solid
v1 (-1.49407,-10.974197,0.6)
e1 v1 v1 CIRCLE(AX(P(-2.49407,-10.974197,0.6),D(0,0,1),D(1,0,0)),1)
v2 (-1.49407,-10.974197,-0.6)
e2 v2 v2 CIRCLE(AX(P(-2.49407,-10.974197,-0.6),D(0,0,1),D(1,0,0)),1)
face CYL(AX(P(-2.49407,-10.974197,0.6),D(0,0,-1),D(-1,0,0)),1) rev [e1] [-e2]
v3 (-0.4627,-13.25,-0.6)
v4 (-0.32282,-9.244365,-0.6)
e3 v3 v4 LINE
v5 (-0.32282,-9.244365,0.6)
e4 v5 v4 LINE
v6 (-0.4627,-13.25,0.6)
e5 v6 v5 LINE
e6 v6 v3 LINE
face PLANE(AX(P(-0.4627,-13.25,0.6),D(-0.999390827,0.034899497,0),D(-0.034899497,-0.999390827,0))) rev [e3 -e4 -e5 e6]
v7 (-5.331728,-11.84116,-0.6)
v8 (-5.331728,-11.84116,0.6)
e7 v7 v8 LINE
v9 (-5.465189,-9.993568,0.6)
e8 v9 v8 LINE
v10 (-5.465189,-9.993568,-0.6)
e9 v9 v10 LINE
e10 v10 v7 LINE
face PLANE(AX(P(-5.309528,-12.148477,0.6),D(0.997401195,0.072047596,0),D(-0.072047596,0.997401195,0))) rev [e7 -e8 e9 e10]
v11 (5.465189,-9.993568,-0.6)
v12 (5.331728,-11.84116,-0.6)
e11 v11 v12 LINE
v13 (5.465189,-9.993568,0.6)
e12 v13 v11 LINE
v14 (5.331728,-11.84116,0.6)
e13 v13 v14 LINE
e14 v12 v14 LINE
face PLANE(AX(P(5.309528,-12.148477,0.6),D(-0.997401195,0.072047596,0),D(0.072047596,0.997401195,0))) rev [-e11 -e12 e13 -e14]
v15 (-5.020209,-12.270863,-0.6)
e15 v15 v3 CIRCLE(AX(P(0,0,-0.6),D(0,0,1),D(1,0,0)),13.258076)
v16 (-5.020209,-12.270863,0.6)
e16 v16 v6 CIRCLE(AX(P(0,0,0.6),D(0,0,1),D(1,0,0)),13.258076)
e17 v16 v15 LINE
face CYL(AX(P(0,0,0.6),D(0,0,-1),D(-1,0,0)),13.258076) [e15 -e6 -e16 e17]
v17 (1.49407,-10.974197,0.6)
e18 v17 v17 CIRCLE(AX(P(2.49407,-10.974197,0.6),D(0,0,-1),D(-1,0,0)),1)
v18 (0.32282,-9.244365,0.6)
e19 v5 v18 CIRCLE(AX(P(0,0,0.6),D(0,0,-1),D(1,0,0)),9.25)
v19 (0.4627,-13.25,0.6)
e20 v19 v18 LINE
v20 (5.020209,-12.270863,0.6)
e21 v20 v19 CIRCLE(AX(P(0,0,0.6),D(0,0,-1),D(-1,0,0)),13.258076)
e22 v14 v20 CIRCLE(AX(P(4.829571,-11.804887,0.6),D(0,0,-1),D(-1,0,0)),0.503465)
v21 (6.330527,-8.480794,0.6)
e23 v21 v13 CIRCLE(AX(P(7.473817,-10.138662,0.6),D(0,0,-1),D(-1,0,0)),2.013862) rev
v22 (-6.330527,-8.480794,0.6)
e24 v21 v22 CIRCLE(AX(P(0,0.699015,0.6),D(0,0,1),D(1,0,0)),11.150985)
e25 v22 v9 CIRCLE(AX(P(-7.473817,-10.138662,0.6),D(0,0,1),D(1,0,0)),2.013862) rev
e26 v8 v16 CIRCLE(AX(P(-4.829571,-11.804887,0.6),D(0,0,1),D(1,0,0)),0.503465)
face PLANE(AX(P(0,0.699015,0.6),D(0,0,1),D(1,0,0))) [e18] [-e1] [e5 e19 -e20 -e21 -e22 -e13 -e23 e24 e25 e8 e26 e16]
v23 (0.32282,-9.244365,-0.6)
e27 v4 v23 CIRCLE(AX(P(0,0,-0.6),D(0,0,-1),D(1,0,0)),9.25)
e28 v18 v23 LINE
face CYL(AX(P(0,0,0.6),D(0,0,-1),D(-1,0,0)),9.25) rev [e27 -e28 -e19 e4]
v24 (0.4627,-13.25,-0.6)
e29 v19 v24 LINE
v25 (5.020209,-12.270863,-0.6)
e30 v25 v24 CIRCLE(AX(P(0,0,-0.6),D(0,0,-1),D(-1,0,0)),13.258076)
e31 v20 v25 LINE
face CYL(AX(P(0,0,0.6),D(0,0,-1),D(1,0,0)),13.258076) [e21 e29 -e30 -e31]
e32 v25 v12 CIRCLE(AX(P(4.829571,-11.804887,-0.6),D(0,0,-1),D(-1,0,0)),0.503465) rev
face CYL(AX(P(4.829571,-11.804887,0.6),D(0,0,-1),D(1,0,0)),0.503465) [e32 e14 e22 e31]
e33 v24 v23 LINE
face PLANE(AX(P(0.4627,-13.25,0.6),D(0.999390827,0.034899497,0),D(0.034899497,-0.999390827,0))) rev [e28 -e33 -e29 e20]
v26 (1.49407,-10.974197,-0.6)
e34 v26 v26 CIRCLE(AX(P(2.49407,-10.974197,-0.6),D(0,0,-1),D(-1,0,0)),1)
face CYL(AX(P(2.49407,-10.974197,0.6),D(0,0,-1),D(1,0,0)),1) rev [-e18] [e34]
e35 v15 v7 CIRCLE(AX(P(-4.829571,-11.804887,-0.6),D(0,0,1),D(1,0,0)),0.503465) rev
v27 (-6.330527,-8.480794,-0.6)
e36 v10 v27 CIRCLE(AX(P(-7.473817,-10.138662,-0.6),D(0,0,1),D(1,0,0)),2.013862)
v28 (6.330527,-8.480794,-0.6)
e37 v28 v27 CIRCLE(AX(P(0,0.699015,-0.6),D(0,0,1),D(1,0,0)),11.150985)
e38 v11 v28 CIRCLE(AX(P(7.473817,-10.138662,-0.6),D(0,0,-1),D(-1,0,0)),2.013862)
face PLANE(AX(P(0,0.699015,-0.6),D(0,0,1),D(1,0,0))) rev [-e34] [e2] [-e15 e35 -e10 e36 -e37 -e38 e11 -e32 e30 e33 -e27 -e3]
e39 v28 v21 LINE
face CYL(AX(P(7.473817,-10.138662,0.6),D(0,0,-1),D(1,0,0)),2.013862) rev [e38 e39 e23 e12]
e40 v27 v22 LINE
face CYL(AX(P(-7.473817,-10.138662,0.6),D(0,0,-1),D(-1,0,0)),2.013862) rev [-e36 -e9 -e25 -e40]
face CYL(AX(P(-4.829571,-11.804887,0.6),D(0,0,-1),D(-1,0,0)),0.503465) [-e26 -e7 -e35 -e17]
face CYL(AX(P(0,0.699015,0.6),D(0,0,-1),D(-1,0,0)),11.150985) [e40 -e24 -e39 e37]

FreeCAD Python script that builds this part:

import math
import FreeCAD as App
import Part
import Sketcher
Q = App.Units.Quantity


def edges_at(feature, points):
    """Names of the edges that pass closest to the given points."""
    edges = feature.Shape.Edges
    near = lambda p: min(range(len(edges)), key=lambda i: edges[i].distToShape(Part.Vertex(*p))[0])
    return sorted({f"Edge{near(p) + 1}" for p in points})

doc = App.newDocument("Part")
body = doc.addObject("PartDesign::Body", "Body")

sketch1 = body.newObject("Sketcher::SketchObject", "Sketch")
sketch1.AttachmentSupport = (doc.getObject("XY_Plane"), [""])
sketch1.MapMode = "FlatFace"
sketch1.addGeometry(Part.LineSegment(App.Vector(-5.5, -9, 0), App.Vector(-5.3, -12.1, 0)), False)
sketch1.addGeometry(Part.ArcOfCircle(Part.Circle(App.Vector(0, 0, 0), App.Vector(0, 0, 1), 13.3), math.radians(-114), math.radians(-92)), False)
sketch1.addGeometry(Part.LineSegment(App.Vector(-0.5, -13.2, 0), App.Vector(-0.3, -9.2, 0)), False)
sketch1.addGeometry(Part.ArcOfCircle(Part.Circle(App.Vector(0, 0, 0), App.Vector(0, 0, 1), 9.2), math.radians(90), math.radians(268)), False)
sketch1.addGeometry(Part.LineSegment(App.Vector(0, 9.2, 0), App.Vector(0, 11.8, 0)), False)
sketch1.addGeometry(Part.ArcOfCircle(Part.Circle(App.Vector(0, 0.7, 0), App.Vector(0, 0, 1), 11.2), math.radians(90), math.radians(240)), False)
sketch1.addGeometry(Part.Circle(App.Vector(-2.5, -11, 0), App.Vector(0, 0, 1), 1), False)
sketch1.addConstraint(Sketcher.Constraint("Coincident", 0, 2, 1, 1))
sketch1.addConstraint(Sketcher.Constraint("Coincident", 1, 2, 2, 1))
sketch1.addConstraint(Sketcher.Constraint("Coincident", 2, 2, 3, 2))
sketch1.addConstraint(Sketcher.Constraint("Coincident", 3, 1, 4, 1))
sketch1.addConstraint(Sketcher.Constraint("Coincident", 4, 2, 5, 1))
sketch1.addConstraint(Sketcher.Constraint("Coincident", 5, 2, 0, 1))
sketch1.addConstraint(Sketcher.Constraint("Vertical", 4))
sketch1.addConstraint(Sketcher.Constraint("Coincident", 1, 3, -1, 1))
sketch1.addConstraint(Sketcher.Constraint("Coincident", 3, 3, -1, 1))
sketch1.addConstraint(Sketcher.Constraint("PointOnObject", 5, 3, -2))
sketch1.addConstraint(Sketcher.Constraint("PointOnObject", 3, 1, -2))
sketch1.addConstraint(Sketcher.Constraint("Diameter", 6, Q("2 mm")))
sketch1.addConstraint(Sketcher.Constraint("Angle", 2, Q("88 deg")))
sketch1.addConstraint(Sketcher.Constraint("Radius", 3, Q("9.25 mm")))
sketch1.addConstraint(Sketcher.Constraint("DistanceY", 4, 1, 4, 2, Q("2.6 mm")))
sketch1.addConstraint(Sketcher.Constraint("DistanceY", 1, 2, -1, 1, Q("13.25 mm")))
sketch1.addConstraint(Sketcher.Constraint("Radius", 1, Q("13.258076 mm")))
sketch1.addConstraint(Sketcher.Constraint("Radius", 5, Q("11.150985 mm")))
sketch1.addConstraint(Sketcher.Constraint("DistanceX", 6, 3, -1, 1, Q("2.49407 mm")))
sketch1.addConstraint(Sketcher.Constraint("DistanceX", 0, 2, -1, 1, Q("5.309528 mm")))
sketch1.addConstraint(Sketcher.Constraint("DistanceY", 5, 2, -1, 1, Q("8.979311 mm")))
sketch1.addConstraint(Sketcher.Constraint("DistanceY", 6, 3, 5, 3, Q("11.673212 mm")))
pad1 = body.newObject("PartDesign::Pad", "Pad")
pad1.Profile = sketch1
pad1.Length = 1.2
pad1.Midplane = True
doc.recompute()

fillet = body.newObject("PartDesign::Fillet", "Fillet")
fillet.Base = (pad1, edges_at(pad1, [(-5.538, -8.979, 0)]))
fillet.Radius = 2.013862
doc.recompute()

fillet2 = body.newObject("PartDesign::Fillet", "Fillet001")
fillet2.Base = (fillet, edges_at(fillet, [(-5.31, -12.148, 0)]))
fillet2.Radius = 0.503465
body2 = doc.addObject("PartDesign::Body", "Body001")
doc.recompute()

body2.BaseFeature = body
doc.recompute()

mirroring = doc.addObject("Part::Mirroring", "Mirroring")
mirroring.Source = body
mirroring.Base = App.Vector(0, 11.85, 0.6)
mirroring.Normal = App.Vector(-1, 0, 0)
body3 = doc.addObject("PartDesign::Body", "Body002")
body3.BaseFeature = mirroring
boolean = body2.newObject("PartDesign::Boolean", "Boolean")
boolean.Type = "Fuse"
boolean.addObjects([body3])
doc.recompute()
mirroring.Visibility = False

doc.recompute()
